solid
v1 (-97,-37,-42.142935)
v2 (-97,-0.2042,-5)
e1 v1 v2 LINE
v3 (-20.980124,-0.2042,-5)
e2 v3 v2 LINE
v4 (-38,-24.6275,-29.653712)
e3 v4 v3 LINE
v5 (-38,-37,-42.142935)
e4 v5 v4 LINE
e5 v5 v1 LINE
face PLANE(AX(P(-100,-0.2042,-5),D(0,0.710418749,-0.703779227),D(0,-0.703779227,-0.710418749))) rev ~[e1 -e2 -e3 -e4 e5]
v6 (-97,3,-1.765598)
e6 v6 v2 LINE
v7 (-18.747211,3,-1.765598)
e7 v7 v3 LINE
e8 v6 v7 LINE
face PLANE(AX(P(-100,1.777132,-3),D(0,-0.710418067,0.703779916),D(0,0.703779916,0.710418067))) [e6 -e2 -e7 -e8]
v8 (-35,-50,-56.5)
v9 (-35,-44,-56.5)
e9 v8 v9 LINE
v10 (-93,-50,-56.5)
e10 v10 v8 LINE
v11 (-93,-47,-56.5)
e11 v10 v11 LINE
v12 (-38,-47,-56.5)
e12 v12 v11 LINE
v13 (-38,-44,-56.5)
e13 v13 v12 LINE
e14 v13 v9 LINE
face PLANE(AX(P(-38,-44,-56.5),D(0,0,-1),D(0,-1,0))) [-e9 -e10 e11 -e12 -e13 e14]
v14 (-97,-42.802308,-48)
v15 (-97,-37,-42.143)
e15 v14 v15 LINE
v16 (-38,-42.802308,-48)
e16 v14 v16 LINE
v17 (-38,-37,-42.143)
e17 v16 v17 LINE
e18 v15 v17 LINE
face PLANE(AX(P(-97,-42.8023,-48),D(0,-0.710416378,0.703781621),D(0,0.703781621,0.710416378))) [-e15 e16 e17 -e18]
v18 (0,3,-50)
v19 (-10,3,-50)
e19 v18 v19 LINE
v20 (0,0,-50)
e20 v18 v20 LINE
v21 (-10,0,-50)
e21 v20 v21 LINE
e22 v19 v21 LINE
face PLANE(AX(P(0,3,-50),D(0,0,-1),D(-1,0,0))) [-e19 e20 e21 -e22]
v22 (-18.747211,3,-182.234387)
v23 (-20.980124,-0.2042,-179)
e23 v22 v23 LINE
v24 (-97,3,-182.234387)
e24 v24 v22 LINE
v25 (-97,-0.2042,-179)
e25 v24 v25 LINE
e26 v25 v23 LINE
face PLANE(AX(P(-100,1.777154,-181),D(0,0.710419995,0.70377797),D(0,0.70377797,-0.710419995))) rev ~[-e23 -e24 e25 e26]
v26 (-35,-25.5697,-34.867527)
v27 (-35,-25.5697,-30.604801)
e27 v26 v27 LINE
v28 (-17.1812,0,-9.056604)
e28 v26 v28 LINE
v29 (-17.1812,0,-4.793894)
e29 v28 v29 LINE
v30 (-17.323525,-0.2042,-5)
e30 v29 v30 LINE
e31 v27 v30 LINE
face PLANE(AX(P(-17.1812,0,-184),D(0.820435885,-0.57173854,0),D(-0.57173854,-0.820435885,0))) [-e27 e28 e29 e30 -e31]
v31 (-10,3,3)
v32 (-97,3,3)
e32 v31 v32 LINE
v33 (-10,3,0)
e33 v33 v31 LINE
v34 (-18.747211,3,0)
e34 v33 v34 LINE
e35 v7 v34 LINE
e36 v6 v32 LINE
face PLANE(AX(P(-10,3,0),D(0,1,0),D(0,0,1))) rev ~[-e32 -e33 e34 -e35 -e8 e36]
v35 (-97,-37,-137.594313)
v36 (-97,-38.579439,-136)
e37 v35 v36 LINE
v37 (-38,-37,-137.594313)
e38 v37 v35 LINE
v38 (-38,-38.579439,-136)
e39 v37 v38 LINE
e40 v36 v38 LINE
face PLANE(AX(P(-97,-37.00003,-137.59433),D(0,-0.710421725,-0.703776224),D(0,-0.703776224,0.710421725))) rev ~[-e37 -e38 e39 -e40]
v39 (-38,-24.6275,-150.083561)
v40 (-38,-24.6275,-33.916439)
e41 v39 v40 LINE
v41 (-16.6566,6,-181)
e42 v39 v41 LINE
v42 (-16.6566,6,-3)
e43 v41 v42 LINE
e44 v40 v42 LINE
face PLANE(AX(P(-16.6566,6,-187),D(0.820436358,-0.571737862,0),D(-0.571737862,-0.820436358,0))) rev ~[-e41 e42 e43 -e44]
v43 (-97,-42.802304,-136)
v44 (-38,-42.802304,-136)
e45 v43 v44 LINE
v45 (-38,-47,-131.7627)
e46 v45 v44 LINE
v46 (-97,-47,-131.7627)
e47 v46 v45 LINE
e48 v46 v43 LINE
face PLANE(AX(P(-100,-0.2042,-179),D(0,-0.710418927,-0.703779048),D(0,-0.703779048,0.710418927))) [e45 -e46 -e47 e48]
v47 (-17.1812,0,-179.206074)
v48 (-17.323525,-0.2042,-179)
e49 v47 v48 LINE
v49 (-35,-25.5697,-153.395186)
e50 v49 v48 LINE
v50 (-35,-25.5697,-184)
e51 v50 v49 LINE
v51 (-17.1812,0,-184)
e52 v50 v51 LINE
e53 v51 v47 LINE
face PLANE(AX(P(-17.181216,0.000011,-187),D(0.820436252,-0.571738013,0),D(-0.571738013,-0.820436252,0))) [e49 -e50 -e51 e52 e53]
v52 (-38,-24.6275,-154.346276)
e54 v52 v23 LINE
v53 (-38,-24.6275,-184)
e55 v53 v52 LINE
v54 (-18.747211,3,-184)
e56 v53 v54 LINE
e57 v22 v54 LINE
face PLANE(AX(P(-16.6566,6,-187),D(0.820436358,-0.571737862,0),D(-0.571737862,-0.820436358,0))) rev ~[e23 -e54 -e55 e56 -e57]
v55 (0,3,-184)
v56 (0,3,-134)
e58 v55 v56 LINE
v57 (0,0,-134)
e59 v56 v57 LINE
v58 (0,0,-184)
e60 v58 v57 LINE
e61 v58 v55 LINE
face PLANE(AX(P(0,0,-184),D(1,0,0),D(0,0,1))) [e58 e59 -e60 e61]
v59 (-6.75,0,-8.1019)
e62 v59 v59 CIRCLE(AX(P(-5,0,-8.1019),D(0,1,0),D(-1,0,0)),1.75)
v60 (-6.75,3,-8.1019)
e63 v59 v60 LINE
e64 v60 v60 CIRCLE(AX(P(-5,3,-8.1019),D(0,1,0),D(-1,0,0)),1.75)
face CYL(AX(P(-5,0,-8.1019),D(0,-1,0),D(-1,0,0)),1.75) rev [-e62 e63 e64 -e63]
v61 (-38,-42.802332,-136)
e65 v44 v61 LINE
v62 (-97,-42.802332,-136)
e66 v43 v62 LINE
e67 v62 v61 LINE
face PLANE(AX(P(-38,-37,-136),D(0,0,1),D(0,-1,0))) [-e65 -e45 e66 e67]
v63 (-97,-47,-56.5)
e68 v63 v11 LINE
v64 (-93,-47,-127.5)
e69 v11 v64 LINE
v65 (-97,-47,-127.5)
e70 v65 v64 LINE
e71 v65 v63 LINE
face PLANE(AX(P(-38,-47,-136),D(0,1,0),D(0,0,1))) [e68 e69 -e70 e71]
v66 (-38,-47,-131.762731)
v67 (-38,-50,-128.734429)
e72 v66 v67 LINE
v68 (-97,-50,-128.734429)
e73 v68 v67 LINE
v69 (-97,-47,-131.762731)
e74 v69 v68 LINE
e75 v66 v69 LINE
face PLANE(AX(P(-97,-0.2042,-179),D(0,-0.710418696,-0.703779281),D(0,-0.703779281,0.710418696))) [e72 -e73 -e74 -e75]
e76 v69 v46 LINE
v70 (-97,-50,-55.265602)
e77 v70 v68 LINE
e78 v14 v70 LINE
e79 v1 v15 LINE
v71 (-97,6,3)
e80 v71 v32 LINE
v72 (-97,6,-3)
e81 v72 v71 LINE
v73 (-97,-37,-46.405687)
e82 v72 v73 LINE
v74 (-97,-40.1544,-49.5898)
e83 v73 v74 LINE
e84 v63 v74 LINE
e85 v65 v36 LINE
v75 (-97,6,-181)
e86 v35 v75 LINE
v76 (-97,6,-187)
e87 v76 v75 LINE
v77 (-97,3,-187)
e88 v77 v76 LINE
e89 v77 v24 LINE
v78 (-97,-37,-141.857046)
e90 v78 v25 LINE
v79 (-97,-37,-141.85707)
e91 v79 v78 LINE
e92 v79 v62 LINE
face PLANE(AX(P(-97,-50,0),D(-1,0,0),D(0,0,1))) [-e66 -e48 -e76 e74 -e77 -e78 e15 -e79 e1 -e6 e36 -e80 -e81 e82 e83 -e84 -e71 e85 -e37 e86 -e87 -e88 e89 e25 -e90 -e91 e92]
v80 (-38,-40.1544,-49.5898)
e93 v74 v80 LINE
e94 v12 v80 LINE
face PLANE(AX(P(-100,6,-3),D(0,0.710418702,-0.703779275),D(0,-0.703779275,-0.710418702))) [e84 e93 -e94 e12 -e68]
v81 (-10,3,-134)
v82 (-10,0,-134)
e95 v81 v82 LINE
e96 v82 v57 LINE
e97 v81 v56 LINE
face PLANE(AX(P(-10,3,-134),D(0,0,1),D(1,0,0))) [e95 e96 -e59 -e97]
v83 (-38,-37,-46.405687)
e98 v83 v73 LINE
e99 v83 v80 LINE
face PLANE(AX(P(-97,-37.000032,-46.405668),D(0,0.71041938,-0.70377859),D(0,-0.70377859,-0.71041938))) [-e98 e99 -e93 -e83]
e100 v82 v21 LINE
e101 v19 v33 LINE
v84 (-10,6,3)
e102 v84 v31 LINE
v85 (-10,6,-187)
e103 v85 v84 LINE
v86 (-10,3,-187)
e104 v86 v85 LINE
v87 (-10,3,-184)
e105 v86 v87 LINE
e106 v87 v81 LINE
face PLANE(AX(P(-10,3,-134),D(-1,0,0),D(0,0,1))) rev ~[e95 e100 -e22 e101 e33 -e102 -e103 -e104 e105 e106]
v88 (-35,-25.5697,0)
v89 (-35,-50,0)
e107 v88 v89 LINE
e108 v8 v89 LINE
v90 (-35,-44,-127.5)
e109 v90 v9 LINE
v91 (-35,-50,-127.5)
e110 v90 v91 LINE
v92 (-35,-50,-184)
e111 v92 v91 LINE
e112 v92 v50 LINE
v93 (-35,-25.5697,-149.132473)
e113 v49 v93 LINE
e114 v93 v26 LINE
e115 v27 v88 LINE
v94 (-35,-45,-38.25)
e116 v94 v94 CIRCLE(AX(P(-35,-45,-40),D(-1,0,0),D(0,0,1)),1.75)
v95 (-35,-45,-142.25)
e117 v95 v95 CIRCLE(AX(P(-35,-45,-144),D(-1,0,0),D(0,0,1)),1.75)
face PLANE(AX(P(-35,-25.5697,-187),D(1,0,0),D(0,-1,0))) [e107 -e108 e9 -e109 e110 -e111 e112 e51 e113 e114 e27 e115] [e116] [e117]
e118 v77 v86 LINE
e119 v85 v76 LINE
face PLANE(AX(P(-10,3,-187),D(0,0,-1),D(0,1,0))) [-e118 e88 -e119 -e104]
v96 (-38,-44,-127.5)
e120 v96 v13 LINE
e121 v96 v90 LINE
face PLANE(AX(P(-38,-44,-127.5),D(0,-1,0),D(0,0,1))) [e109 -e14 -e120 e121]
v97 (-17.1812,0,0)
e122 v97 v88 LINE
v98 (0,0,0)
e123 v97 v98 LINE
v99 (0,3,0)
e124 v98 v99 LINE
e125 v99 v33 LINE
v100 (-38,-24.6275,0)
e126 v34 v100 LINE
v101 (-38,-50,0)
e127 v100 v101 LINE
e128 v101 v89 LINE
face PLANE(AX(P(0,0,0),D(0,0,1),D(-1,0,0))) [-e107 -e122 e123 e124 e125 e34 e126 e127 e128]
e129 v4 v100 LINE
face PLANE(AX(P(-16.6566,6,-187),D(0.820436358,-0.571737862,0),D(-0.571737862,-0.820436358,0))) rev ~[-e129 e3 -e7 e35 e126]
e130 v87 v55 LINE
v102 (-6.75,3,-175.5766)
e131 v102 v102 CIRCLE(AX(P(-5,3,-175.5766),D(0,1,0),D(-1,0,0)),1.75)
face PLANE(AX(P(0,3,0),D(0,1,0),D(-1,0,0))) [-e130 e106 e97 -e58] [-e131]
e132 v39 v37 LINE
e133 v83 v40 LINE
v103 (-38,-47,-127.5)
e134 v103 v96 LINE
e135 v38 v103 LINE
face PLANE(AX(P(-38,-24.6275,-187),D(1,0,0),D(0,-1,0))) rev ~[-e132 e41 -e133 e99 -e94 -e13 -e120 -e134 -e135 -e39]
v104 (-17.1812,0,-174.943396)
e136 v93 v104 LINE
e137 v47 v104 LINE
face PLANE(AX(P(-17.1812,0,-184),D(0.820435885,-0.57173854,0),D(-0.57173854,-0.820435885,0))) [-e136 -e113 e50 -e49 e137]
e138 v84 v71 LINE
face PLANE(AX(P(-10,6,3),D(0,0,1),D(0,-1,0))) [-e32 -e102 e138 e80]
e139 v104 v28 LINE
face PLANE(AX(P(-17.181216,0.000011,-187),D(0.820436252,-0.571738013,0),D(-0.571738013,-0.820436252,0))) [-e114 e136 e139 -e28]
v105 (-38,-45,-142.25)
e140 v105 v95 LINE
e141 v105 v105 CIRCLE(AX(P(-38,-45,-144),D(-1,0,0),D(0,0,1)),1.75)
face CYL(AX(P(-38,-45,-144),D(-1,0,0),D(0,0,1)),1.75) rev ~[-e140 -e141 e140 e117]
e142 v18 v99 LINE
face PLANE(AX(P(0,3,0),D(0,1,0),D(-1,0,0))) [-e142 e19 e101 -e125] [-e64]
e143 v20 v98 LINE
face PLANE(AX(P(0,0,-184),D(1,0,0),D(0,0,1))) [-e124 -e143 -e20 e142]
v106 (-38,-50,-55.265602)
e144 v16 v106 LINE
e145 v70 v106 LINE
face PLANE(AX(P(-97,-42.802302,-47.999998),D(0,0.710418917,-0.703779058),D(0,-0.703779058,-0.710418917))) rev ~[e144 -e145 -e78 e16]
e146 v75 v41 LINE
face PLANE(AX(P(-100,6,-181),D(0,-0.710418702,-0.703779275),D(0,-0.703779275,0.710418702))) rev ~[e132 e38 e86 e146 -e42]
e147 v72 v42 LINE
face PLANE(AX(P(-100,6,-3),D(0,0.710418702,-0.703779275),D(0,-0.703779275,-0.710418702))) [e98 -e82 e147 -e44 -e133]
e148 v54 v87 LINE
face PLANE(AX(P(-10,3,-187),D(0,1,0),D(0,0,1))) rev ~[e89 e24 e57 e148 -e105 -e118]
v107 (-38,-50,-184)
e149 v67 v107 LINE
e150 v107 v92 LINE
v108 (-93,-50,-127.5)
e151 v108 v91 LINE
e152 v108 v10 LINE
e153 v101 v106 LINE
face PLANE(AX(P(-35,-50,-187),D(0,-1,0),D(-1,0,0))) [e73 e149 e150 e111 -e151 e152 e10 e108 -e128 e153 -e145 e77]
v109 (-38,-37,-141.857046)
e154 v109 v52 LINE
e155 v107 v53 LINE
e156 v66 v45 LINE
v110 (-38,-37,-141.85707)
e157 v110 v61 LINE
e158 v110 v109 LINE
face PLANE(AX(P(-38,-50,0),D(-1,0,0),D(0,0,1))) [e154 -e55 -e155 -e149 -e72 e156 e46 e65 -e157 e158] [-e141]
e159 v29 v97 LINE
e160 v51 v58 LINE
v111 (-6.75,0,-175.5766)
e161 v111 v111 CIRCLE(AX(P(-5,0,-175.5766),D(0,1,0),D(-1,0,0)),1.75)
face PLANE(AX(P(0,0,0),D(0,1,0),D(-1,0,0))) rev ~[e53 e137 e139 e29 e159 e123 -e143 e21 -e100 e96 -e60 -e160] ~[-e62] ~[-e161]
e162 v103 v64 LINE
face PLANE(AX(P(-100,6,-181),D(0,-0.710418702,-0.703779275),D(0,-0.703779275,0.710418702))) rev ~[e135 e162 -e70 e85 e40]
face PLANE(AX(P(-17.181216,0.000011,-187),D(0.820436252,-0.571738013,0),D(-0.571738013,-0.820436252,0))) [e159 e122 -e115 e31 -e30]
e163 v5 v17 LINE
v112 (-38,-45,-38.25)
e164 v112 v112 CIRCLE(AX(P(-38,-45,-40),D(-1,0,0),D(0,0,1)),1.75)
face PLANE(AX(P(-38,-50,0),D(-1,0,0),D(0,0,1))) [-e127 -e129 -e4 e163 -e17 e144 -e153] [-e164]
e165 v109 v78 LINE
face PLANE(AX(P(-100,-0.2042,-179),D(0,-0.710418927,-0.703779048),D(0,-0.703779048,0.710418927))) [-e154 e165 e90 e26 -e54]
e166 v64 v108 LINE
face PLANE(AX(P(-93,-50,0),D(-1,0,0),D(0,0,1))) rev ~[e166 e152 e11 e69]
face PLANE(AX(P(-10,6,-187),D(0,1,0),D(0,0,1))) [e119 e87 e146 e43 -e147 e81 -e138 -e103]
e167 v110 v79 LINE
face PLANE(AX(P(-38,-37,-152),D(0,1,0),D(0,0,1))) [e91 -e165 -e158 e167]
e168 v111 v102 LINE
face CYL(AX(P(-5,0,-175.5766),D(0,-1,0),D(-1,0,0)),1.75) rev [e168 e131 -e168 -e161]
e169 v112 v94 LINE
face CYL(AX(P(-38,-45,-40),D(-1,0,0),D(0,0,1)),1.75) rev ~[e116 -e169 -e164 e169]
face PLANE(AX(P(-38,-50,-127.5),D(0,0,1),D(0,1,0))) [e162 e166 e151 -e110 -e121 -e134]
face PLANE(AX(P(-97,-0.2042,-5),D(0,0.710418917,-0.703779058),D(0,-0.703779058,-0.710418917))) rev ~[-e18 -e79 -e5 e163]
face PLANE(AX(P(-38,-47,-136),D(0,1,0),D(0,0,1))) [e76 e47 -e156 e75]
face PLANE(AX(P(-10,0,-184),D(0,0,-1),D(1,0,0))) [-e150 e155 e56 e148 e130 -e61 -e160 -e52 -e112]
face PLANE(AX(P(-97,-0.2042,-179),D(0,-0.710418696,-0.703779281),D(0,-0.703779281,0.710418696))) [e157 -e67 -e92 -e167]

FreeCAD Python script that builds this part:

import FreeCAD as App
import Part
import Sketcher

V = App.Vector
Q = App.Units.Quantity


def add_polygon(sketch, points):
    """Adds a closed chain of lines whose ends are joined by coincident constraints."""
    first, n = sketch.GeometryCount, len(points)
    for a, b in zip(points, points[1:] + points[:1]):
        sketch.addGeometry(Part.LineSegment(App.Vector(*a, 0), App.Vector(*b, 0)), False)
    for i in range(n):
        sketch.addConstraint(Sketcher.Constraint("Coincident", first + i, 2, first + (i + 1) % n, 1))

doc = App.newDocument("Part")
params = doc.addObject("Spreadsheet::Sheet", "Params")
for row, (alias, value) in enumerate([
    ("sketch1_diameter", "3.5 mm"),
    ("sketch1_width", "10 mm"),
    ("sketch1_height", "184 mm"),
    ("pad1_length", "3 mm"),
    ("sketch2_width", "3 mm"),
    ("sketch2_height", "184 mm"),
    ("pad2_length", "3 mm"),
    ("sketch3_width", "3 mm"),
    ("sketch3_height", "6 mm"),
    ("pad3_length", "190 mm"),
    ("sketch4_width", "25 mm"),
    ("sketch4_height", "53 mm"),
    ("pocket1_length", "3 mm"),
    ("sketch5_width", "25 mm"),
    ("sketch5_height", "53 mm"),
    ("pocket2_length", "3 mm"),
    ("sketch6_diameter", "3.5 mm"),
    ("pocket3_length", "3 mm"),
    ("sketch7_width", "6 mm"),
    ("sketch7_height", "71 mm"),
    ("pocket4_length", "3 mm"),
    ("sketch8_width", "3 mm"),
    ("sketch8_width2", "10 mm"),
    ("sketch8_height", "32 mm"),
    ("sketch8_height2", "8.5 mm"),
    ("pad4_length", "55 mm"),
    ("sketch9_width", "3 mm"),
    ("sketch9_width2", "10 mm"),
    ("sketch9_width3", "7 mm"),
    ("sketch9_height", "32 mm"),
    ("sketch9_height2", "16 mm"),
    ("pad5_length", "7 mm"),
    ("sketch10_width", "3 mm"),
    ("pad6_length", "90 mm"),
    ("pocket5_length", "3 mm"),
    ("sketch12_width", "35 mm"),
    ("sketch13_length", "13.48 mm"),
    ("pocket7_length", "59 mm"),
    ("sketch14_width", "10 mm"),
    ("sketch14_height", "84 mm"),
    ("pocket8_length", "90 mm"),
], start=1):
    params.set(f"A{row}", alias)
    params.set(f"B{row}", "=" + value)
    params.setAlias(f"B{row}", alias)

body = doc.addObject("PartDesign::Body", "Body")

sketch1 = body.newObject("Sketcher::SketchObject", "Sketch")
sketch1.AttachmentSupport = (doc.getObject("XZ_Plane"), [""])
sketch1.MapMode = "FlatFace"
add_polygon(sketch1, [(-10, 0), (0, 0), (0, -184), (-10, -184)])
sketch1.addGeometry(Part.Circle(V(-5, -175.6, 0), V(0, 0, 1), 1.8), False)
sketch1.addGeometry(Part.Circle(V(-5, -8.1, 0), V(0, 0, 1), 1.8), False)
sketch1.addConstraint([
    Sketcher.Constraint("Horizontal", 0),
    Sketcher.Constraint("Vertical", 1),
    Sketcher.Constraint("Horizontal", 2),
    Sketcher.Constraint("Vertical", 3),
    Sketcher.Constraint("Coincident", 0, 2, -1, 1),
    Sketcher.Constraint("Equal", 4, 5),
    Sketcher.Constraint("Vertical", 4, 3, 5, 3),
    Sketcher.Constraint("Diameter", 4, 3.5),
    Sketcher.Constraint("DistanceX", 0, 1, 0, 2, 10.0),
    Sketcher.Constraint("DistanceY", 1, 2, 1, 1, 184.0),
    Sketcher.Constraint("DistanceX", 4, 3, -1, 1, 5.0),
    Sketcher.Constraint("DistanceY", 4, 3, 5, 3, 167.4747),
    Sketcher.Constraint("DistanceY", 5, 3, -1, 1, 8.102),
])
sketch1.setExpression("Constraints[11]", "Params.sketch1_diameter")
sketch1.setExpression("Constraints[12]", "Params.sketch1_width")
sketch1.setExpression("Constraints[13]", "Params.sketch1_height")
pad1 = body.newObject("PartDesign::Pad", "Pad")
pad1.Profile = sketch1
pad1.setExpression("Length", "Params.pad1_length")
pad1.Reversed = True

sketch2 = body.newObject("Sketcher::SketchObject", "Sketch001")
sketch2.AttachmentSupport = (doc.getObject("YZ_Plane"), [""])
sketch2.MapMode = "FlatFace"
sketch2.AttachmentOffset = App.Placement(V(0, 0, -10), App.Rotation())
add_polygon(sketch2, [(0, -184), (0, 0), (3, 0), (3, 3), (6, 3), (6, -187), (3, -187), (3, -184)])
sketch2.addConstraint([
    Sketcher.Constraint("Vertical", 0),
    Sketcher.Constraint("Horizontal", 1),
    Sketcher.Constraint("Vertical", 2),
    Sketcher.Constraint("Horizontal", 3),
    Sketcher.Constraint("Vertical", 4),
    Sketcher.Constraint("Horizontal", 5),
    Sketcher.Constraint("Vertical", 6),
    Sketcher.Constraint("Horizontal", 7),
    Sketcher.Constraint("Coincident", 0, 2, -1, 1),
    Sketcher.Constraint("Vertical", 2, 2, 5, 2),
    Sketcher.Constraint("Equal", 1, 3),
    Sketcher.Constraint("Equal", 7, 2),
    Sketcher.Constraint("Equal", 2, 6),
    Sketcher.Constraint("DistanceX", 1, 1, 1, 2, 3.0),
    Sketcher.Constraint("DistanceY", 0, 1, 0, 2, 184.0),
])
sketch2.setExpression("Constraints[21]", "Params.sketch2_width")
sketch2.setExpression("Constraints[22]", "Params.sketch2_height")
pad2 = body.newObject("PartDesign::Pad", "Pad001")
pad2.Profile = sketch2
pad2.setExpression("Length", "Params.pad2_length")
pad2.Reversed = True

sketch3 = body.newObject("Sketcher::SketchObject", "Sketch002")
sketch3.AttachmentSupport = (doc.getObject("XY_Plane"), [""])
sketch3.MapMode = "FlatFace"
sketch3.AttachmentOffset = App.Placement(V(0, 0, -187), App.Rotation())
add_polygon(sketch3, [(-16.7, 6), (-13, 6), (-13, 0), (-17.2, 0), (-35, -25.6), (-35, -50), (-38, -50), (-38, -24.6)])
sketch3.addConstraint([
    Sketcher.Constraint("Horizontal", 0),
    Sketcher.Constraint("Vertical", 1),
    Sketcher.Constraint("Horizontal", 2),
    Sketcher.Constraint("Vertical", 4),
    Sketcher.Constraint("Horizontal", 5),
    Sketcher.Constraint("Vertical", 6),
    Sketcher.Constraint("PointOnObject", 1, 2, -1),
    Sketcher.Constraint("Parallel", 3, 7),
    Sketcher.Constraint("DistanceX", 5, 2, 5, 1, 3.0),
    Sketcher.Constraint("DistanceY", 1, 2, 1, 1, 6.0),
    Sketcher.Constraint("DistanceX", 0, 2, -1, 1, 13.0),
    Sketcher.Constraint("DistanceX", 3, 2, -1, 1, 35.0),
    Sketcher.Constraint("DistanceY", 4, 2, -1, 1, 50.0),
    Sketcher.Constraint("Distance", 3, 31.166),
    Sketcher.Constraint("DistanceX", 0, 1, 0, 2, 3.6566),
    Sketcher.Constraint("DistanceX", 2, 2, 2, 1, 4.1812),
])
sketch3.setExpression("Constraints[16]", "Params.sketch3_width")
sketch3.setExpression("Constraints[17]", "Params.sketch3_height")
pad3 = body.newObject("PartDesign::Pad", "Pad002")
pad3.Profile = sketch3
pad3.setExpression("Length", "Params.pad3_length")

sketch4 = body.newObject("Sketcher::SketchObject", "Sketch003")
sketch4.AttachmentSupport = (doc.getObject("XY_Plane"), [""])
sketch4.MapMode = "FlatFace"
sketch4.AttachmentOffset = App.Placement(V(0, 0, -187), App.Rotation())
add_polygon(sketch4, [(-13, -50), (-38, -50), (-38, 3), (-13, 3)])
sketch4.addConstraint([
    Sketcher.Constraint("Horizontal", 0),
    Sketcher.Constraint("Vertical", 1),
    Sketcher.Constraint("Horizontal", 2),
    Sketcher.Constraint("Vertical", 3),
    Sketcher.Constraint("DistanceX", 0, 2, 0, 1, 25.0),
    Sketcher.Constraint("DistanceY", 1, 1, 1, 2, 53.0),
    Sketcher.Constraint("DistanceX", 0, 2, -1, 1, 38.0),
    Sketcher.Constraint("DistanceY", 0, 2, -1, 1, 50.0),
])
sketch4.setExpression("Constraints[8]", "Params.sketch4_width")
sketch4.setExpression("Constraints[9]", "Params.sketch4_height")
pocket1 = body.newObject("PartDesign::Pocket", "Pocket")
pocket1.Profile = sketch4
pocket1.setExpression("Length", "Params.pocket1_length")
pocket1.Reversed = True

sketch5 = body.newObject("Sketcher::SketchObject", "Sketch004")
sketch5.AttachmentSupport = (doc.getObject("XY_Plane"), [""])
sketch5.MapMode = "FlatFace"
sketch5.AttachmentOffset = App.Placement(V(0, 0, 3), App.Rotation())
add_polygon(sketch5, [(-38, 3), (-38, -50), (-13, -50), (-13, 3)])
sketch5.addConstraint([
    Sketcher.Constraint("Vertical", 0),
    Sketcher.Constraint("Horizontal", 1),
    Sketcher.Constraint("Vertical", 2),
    Sketcher.Constraint("Horizontal", 3),
    Sketcher.Constraint("DistanceX", 1, 1, 1, 2, 25.0),
    Sketcher.Constraint("DistanceY", 0, 2, 0, 1, 53.0),
    Sketcher.Constraint("DistanceX", 0, 2, -1, 1, 38.0),
    Sketcher.Constraint("DistanceY", 0, 2, -1, 1, 50.0),
])
sketch5.setExpression("Constraints[8]", "Params.sketch5_width")
sketch5.setExpression("Constraints[9]", "Params.sketch5_height")
pocket2 = body.newObject("PartDesign::Pocket", "Pocket001")
pocket2.Profile = sketch5
pocket2.setExpression("Length", "Params.pocket2_length")

sketch6 = body.newObject("Sketcher::SketchObject", "Sketch005")
sketch6.AttachmentSupport = (doc.getObject("YZ_Plane"), [""])
sketch6.MapMode = "FlatFace"
sketch6.AttachmentOffset = App.Placement(V(0, 0, -38), App.Rotation())
sketch6.addGeometry([
    Part.Circle(V(-45, -40, 0), V(0, 0, 1), 1.8),
    Part.Circle(V(-45, -144, 0), V(0, 0, 1), 1.8),
], False)
sketch6.addConstraint([
    Sketcher.Constraint("Equal", 0, 1),
    Sketcher.Constraint("Vertical", 0, 3, 1, 3),
    Sketcher.Constraint("Diameter", 0, 3.5),
    Sketcher.Constraint("DistanceY", 0, 3, -1, 1, 40.0),
    Sketcher.Constraint("DistanceY", 1, 3, 0, 3, 104.0),
    Sketcher.Constraint("DistanceX", 0, 3, -1, 1, 45.0),
])
sketch6.setExpression("Constraints[2]", "Params.sketch6_diameter")
pocket3 = body.newObject("PartDesign::Pocket", "Pocket002")
pocket3.Profile = sketch6
pocket3.setExpression("Length", "Params.pocket3_length")
pocket3.Reversed = True

sketch7 = body.newObject("Sketcher::SketchObject", "Sketch006")
sketch7.AttachmentSupport = (doc.getObject("YZ_Plane"), [""])
sketch7.MapMode = "FlatFace"
sketch7.AttachmentOffset = App.Placement(V(0, 0, -38), App.Rotation())
add_polygon(sketch7, [(-44, -128), (-50, -128), (-50, -56), (-44, -56)])
sketch7.addConstraint([
    Sketcher.Constraint("Horizontal", 0),
    Sketcher.Constraint("Vertical", 1),
    Sketcher.Constraint("Horizontal", 2),
    Sketcher.Constraint("Vertical", 3),
    Sketcher.Constraint("DistanceX", 0, 2, 0, 1, 6.0),
    Sketcher.Constraint("DistanceY", 1, 1, 1, 2, 71.0),
    Sketcher.Constraint("DistanceY", 1, 2, -1, 1, 56.5),
    Sketcher.Constraint("DistanceX", 0, 2, -1, 1, 50.0),
])
sketch7.setExpression("Constraints[8]", "Params.sketch7_width")
sketch7.setExpression("Constraints[9]", "Params.sketch7_height")
pocket4 = body.newObject("PartDesign::Pocket", "Pocket003")
pocket4.Profile = sketch7
pocket4.setExpression("Length", "Params.pocket4_length")
pocket4.Reversed = True

sketch8 = body.newObject("Sketcher::SketchObject", "Sketch007")
sketch8.AttachmentSupport = (doc.getObject("YZ_Plane"), [""])
sketch8.MapMode = "FlatFace"
sketch8.AttachmentOffset = App.Placement(V(0, 0, -38), App.Rotation())
add_polygon(sketch8, [(-50, 0), (-47, 0), (-47, -32), (-37, -32), (-37, -48), (-47, -48), (-47, -56.5), (-50, -56.5), (-50, -45), (-40, -45), (-40, -35), (-50, -35)])
add_polygon(sketch8, [(-47, -184), (-50, -184), (-50, -149), (-40, -149), (-40, -139), (-50, -139), (-50, -127.5), (-47, -127.5), (-47, -136), (-37, -136), (-37, -152), (-47, -152)])
sketch8.addConstraint([
    Sketcher.Constraint("Horizontal", 0),
    Sketcher.Constraint("Vertical", 1),
    Sketcher.Constraint("Horizontal", 2),
    Sketcher.Constraint("Vertical", 3),
    Sketcher.Constraint("Horizontal", 4),
    Sketcher.Constraint("Vertical", 5),
    Sketcher.Constraint("Horizontal", 6),
    Sketcher.Constraint("Vertical", 7),
    Sketcher.Constraint("Horizontal", 8),
    Sketcher.Constraint("Vertical", 9),
    Sketcher.Constraint("Horizontal", 10),
    Sketcher.Constraint("Vertical", 11),
    Sketcher.Constraint("Horizontal", 12),
    Sketcher.Constraint("Vertical", 13),
    Sketcher.Constraint("Horizontal", 14),
    Sketcher.Constraint("Vertical", 15),
    Sketcher.Constraint("Horizontal", 16),
    Sketcher.Constraint("Vertical", 17),
    Sketcher.Constraint("Horizontal", 18),
    Sketcher.Constraint("Vertical", 19),
    Sketcher.Constraint("Horizontal", 20),
    Sketcher.Constraint("Vertical", 21),
    Sketcher.Constraint("Horizontal", 22),
    Sketcher.Constraint("Vertical", 23),
    Sketcher.Constraint("PointOnObject", 0, 2, -1),
    Sketcher.Constraint("Vertical", 1, 2, 4, 2),
    Sketcher.Constraint("Vertical", 7, 2, 10, 2),
    Sketcher.Constraint("Vertical", 11, 2, 12, 2),
    Sketcher.Constraint("Vertical", 9, 2, 14, 2),
    Sketcher.Constraint("Vertical", 13, 2, 16, 2),
    Sketcher.Constraint("Vertical", 5, 2, 18, 2),
    Sketcher.Constraint("Vertical", 3, 2, 20, 2),
    Sketcher.Constraint("Vertical", 19, 2, 22, 2),
    Sketcher.Constraint("Equal", 4, 8),
    Sketcher.Constraint("Equal", 22, 9),
    Sketcher.Constraint("Equal", 11, 13),
    Sketcher.Constraint("Equal", 9, 15),
    Sketcher.Constraint("Equal", 7, 17),
    Sketcher.Constraint("Equal", 5, 19),
    Sketcher.Constraint("Equal", 3, 21),
    Sketcher.Constraint("DistanceX", 0, 1, 0, 2, 3.0),
    Sketcher.Constraint("DistanceY", 4, 2, 7, 2, 3.0),
    Sketcher.Constraint("DistanceY", 9, 2, 2, 2, 3.0),
    Sketcher.Constraint("DistanceX", 2, 1, 2, 2, 10.0),
    Sketcher.Constraint("DistanceY", 1, 2, 1, 1, 32.0),
    Sketcher.Constraint("DistanceY", 5, 2, 5, 1, 8.5),
    Sketcher.Constraint("DistanceX", 0, 2, -1, 1, 47.0),
    Sketcher.Constraint("DistanceY", 12, 2, -1, 1, 184.0),
])
sketch8.setExpression("Constraints[64]", "Params.sketch8_width")
sketch8.setExpression("Constraints[67]", "Params.sketch8_width2")
sketch8.setExpression("Constraints[68]", "Params.sketch8_height")
sketch8.setExpression("Constraints[69]", "Params.sketch8_height2")
pad4 = body.newObject("PartDesign::Pad", "Pad003")
pad4.Profile = sketch8
pad4.setExpression("Length", "Params.pad4_length")
pad4.Reversed = True

sketch9 = body.newObject("Sketcher::SketchObject", "Sketch008")
sketch9.AttachmentSupport = (doc.getObject("YZ_Plane"), [""])
sketch9.MapMode = "FlatFace"
sketch9.AttachmentOffset = App.Placement(V(0, 0, -93), App.Rotation())
add_polygon(sketch9, [(-50, 0), (-47, 0), (-47, -32), (-37, -32), (-37, -48), (-47, -48), (-47, -136), (-37, -136), (-37, -152), (-47, -152), (-47, -184), (-50, -184)])
add_polygon(sketch9, [(-47, -35), (-47, -45), (-40, -45), (-40, -35)])
add_polygon(sketch9, [(-47, -139), (-47, -149), (-40, -149), (-40, -139)])
sketch9.addConstraint([
    Sketcher.Constraint("Horizontal", 0),
    Sketcher.Constraint("Vertical", 1),
    Sketcher.Constraint("Horizontal", 2),
    Sketcher.Constraint("Vertical", 3),
    Sketcher.Constraint("Horizontal", 4),
    Sketcher.Constraint("Vertical", 5),
    Sketcher.Constraint("Horizontal", 6),
    Sketcher.Constraint("Vertical", 7),
    Sketcher.Constraint("Horizontal", 8),
    Sketcher.Constraint("Vertical", 9),
    Sketcher.Constraint("Horizontal", 10),
    Sketcher.Constraint("Vertical", 11),
    Sketcher.Constraint("Vertical", 12),
    Sketcher.Constraint("Horizontal", 13),
    Sketcher.Constraint("Vertical", 14),
    Sketcher.Constraint("Horizontal", 15),
    Sketcher.Constraint("Vertical", 16),
    Sketcher.Constraint("Horizontal", 17),
    Sketcher.Constraint("Vertical", 18),
    Sketcher.Constraint("Horizontal", 19),
    Sketcher.Constraint("PointOnObject", 0, 2, -1),
    Sketcher.Constraint("Vertical", 1, 2, 4, 2),
    Sketcher.Constraint("Vertical", 3, 2, 6, 2),
    Sketcher.Constraint("Vertical", 5, 2, 8, 2),
    Sketcher.Constraint("Vertical", 9, 2, 12, 2),
    Sketcher.Constraint("Vertical", 15, 2, 16, 2),
    Sketcher.Constraint("Vertical", 14, 2, 17, 2),
    Sketcher.Constraint("Equal", 3, 7),
    Sketcher.Constraint("Equal", 1, 9),
    Sketcher.Constraint("Equal", 8, 12),
    Sketcher.Constraint("Equal", 14, 16),
    Sketcher.Constraint("DistanceX", 0, 1, 0, 2, 3.0),
    Sketcher.Constraint("DistanceX", 2, 1, 2, 2, 10.0),
    Sketcher.Constraint("DistanceX", 13, 1, 13, 2, 7.0),
    Sketcher.Constraint("DistanceY", 1, 2, 1, 1, 32.0),
    Sketcher.Constraint("DistanceY", 3, 2, 3, 1, 16.0),
    Sketcher.Constraint("DistanceY", 5, 2, 5, 1, 88.0),
    Sketcher.Constraint("DistanceX", 0, 2, -1, 1, 47.0),
    Sketcher.Constraint("DistanceY", 12, 2, -1, 1, 45.0),
    Sketcher.Constraint("DistanceY", 16, 2, -1, 1, 149.0),
])
sketch9.setExpression("Constraints[51]", "Params.sketch9_width")
sketch9.setExpression("Constraints[52]", "Params.sketch9_width2")
sketch9.setExpression("Constraints[53]", "Params.sketch9_width3")
sketch9.setExpression("Constraints[54]", "Params.sketch9_height")
sketch9.setExpression("Constraints[55]", "Params.sketch9_height2")
pad5 = body.newObject("PartDesign::Pad", "Pad004")
pad5.Profile = sketch9
pad5.setExpression("Length", "Params.pad5_length")
pad5.Reversed = True

sketch10 = body.newObject("Sketcher::SketchObject", "Sketch009")
sketch10.AttachmentSupport = (doc.getObject("YZ_Plane"), [""])
sketch10.MapMode = "FlatFace"
sketch10.AttachmentOffset = App.Placement(V(0, 0, -100), App.Rotation())
add_polygon(sketch10, [(6, -187), (3, -187), (3, -182.2), (-0.2, -179), (-47, -131.8), (-47, -127.5), (6, -181)])
add_polygon(sketch10, [(6, -3), (-47, -56.5), (-47, -52.2), (-0.2, -5), (3, -1.8), (3, 3), (6, 3)])
sketch10.addConstraint([
    Sketcher.Constraint("Horizontal", 0),
    Sketcher.Constraint("Vertical", 1),
    Sketcher.Constraint("Vertical", 4),
    Sketcher.Constraint("Vertical", 6),
    Sketcher.Constraint("Vertical", 8),
    Sketcher.Constraint("Vertical", 11),
    Sketcher.Constraint("Horizontal", 12),
    Sketcher.Constraint("Vertical", 13),
    Sketcher.Constraint("Parallel", 2, 3),
    Sketcher.Constraint("Parallel", 3, 5),
    Sketcher.Constraint("Parallel", 7, 9),
    Sketcher.Constraint("Parallel", 9, 10),
    Sketcher.Constraint("Vertical", 4, 2, 7, 2),
    Sketcher.Constraint("Vertical", 2, 2, 9, 2),
    Sketcher.Constraint("Vertical", 1, 2, 10, 2),
    Sketcher.Constraint("Vertical", 6, 2, 12, 2),
    Sketcher.Constraint("Equal", 4, 8),
    Sketcher.Constraint("Equal", 1, 11),
    Sketcher.Constraint("Equal", 6, 13),
    Sketcher.Constraint("DistanceX", 0, 2, 0, 1, 3.0),
    Sketcher.Constraint("DistanceX", -1, 1, 0, 2, 3.0),
    Sketcher.Constraint("DistanceY", -1, 1, 11, 2, 3.0),
    Sketcher.Constraint("DistanceY", 13, 2, -1, 1, 3.0),
    Sketcher.Constraint("DistanceY", 5, 2, 2, 2, 2.0),
    Sketcher.Constraint("DistanceY", 0, 2, -1, 1, 187.0),
    Sketcher.Constraint("DistanceX", 3, 2, -1, 1, 47.0),
    Sketcher.Constraint("DistanceY", 4, 2, 7, 2, 71.0),
    Sketcher.Constraint("DistanceY", 1, 1, 1, 2, 4.7656),
])
sketch10.setExpression("Constraints[33]", "Params.sketch10_width")
pad6 = body.newObject("PartDesign::Pad", "Pad005")
pad6.Profile = sketch10
pad6.setExpression("Length", "Params.pad6_length")

sketch11 = body.newObject("Sketcher::SketchObject", "Sketch010")
sketch11.AttachmentSupport = (doc.getObject("YZ_Plane"), [""])
sketch11.MapMode = "FlatFace"
sketch11.AttachmentOffset = App.Placement(V(0, 0, -100), App.Rotation())
add_polygon(sketch11, [(-97, 45), (67, 45), (67, -211), (-97, -211)])
sketch11.addConstraint([
    Sketcher.Constraint("Horizontal", 0),
    Sketcher.Constraint("Vertical", 1),
    Sketcher.Constraint("Horizontal", 2),
    Sketcher.Constraint("Vertical", 3),
    Sketcher.Constraint("DistanceX", 0, 1, 0, 2, 163.6564),
    Sketcher.Constraint("DistanceY", 1, 2, 1, 1, 256.0957),
    Sketcher.Constraint("DistanceX", -1, 1, 0, 2, 66.5237),
    Sketcher.Constraint("DistanceY", -1, 1, 0, 2, 44.6892),
])
pocket5 = body.newObject("PartDesign::Pocket", "Pocket004")
pocket5.Profile = sketch11
pocket5.setExpression("Length", "Params.pocket5_length")
pocket5.Reversed = True

sketch12 = body.newObject("Sketcher::SketchObject", "Sketch011")
sketch12.AttachmentSupport = (doc.getObject("XY_Plane"), [""])
sketch12.MapMode = "FlatFace"
sketch12.AttachmentOffset = App.Placement(V(0, 0, -184), App.Rotation())
add_polygon(sketch12, [(0, -57), (-35, -57), (-35, -26), (-17, 0), (0, 0)])
sketch12.addConstraint([
    Sketcher.Constraint("Horizontal", 0),
    Sketcher.Constraint("Vertical", 1),
    Sketcher.Constraint("Horizontal", 3),
    Sketcher.Constraint("Vertical", 4),
    Sketcher.Constraint("Coincident", 3, 2, -1, 1),
    Sketcher.Constraint("DistanceX", 0, 2, 0, 1, 35.0),
    Sketcher.Constraint("DistanceY", 1, 1, 1, 2, 31.719),
    Sketcher.Constraint("Distance", 2, 31.166),
    Sketcher.Constraint("DistanceX", 3, 1, 3, 2, 17.1812),
])
sketch12.setExpression("Constraints[10]", "Params.sketch12_width")
pocket6 = body.newObject("PartDesign::Pocket", "Pocket005")
pocket6.Profile = sketch12
pocket6.Type = "ThroughAll"
pocket6.Reversed = True

sketch13 = body.newObject("Sketcher::SketchObject", "Sketch012")
sketch13.AttachmentSupport = (doc.getObject("YZ_Plane"), [""])
sketch13.MapMode = "FlatFace"
sketch13.AttachmentOffset = App.Placement(V(0, 0, -97), App.Rotation())
add_polygon(sketch13, [(-40.2, -49.6), (-37, -46.4), (-36.3, -45.7), (-33.8, -48.1), (-37.7, -52)])
add_polygon(sketch13, [(-33.1, -135.2), (-36.3, -138.3), (-37, -137.6), (-39.9, -134.7), (-36.7, -131.5)])
add_polygon(sketch13, [(-53.4, -125.3), (-0.2, -179), (-37.5, -215.9), (-90.7, -162.2)])
add_polygon(sketch13, [(-37, -42.1), (-42.8, -48), (-52.3, -57.6), (-98.6, -11.7), (-46.5, 40.9), (-0.2, -5)])
sketch13.addConstraint([
    Sketcher.Constraint("Parallel", 0, 1),
    Sketcher.Constraint("Perpendicular", 1, 2),
    Sketcher.Constraint("Perpendicular", 2, 3),
    Sketcher.Constraint("Perpendicular", 3, 4),
    Sketcher.Constraint("Perpendicular", 5, 6),
    Sketcher.Constraint("Parallel", 6, 7),
    Sketcher.Constraint("Perpendicular", 7, 8),
    Sketcher.Constraint("Perpendicular", 8, 9),
    Sketcher.Constraint("Parallel", 9, 10),
    Sketcher.Constraint("Perpendicular", 10, 11),
    Sketcher.Constraint("Perpendicular", 11, 12),
    Sketcher.Constraint("Perpendicular", 12, 13),
    Sketcher.Constraint("Perpendicular", 4, 14),
    Sketcher.Constraint("Parallel", 14, 15),
    Sketcher.Constraint("Perpendicular", 15, 16),
    Sketcher.Constraint("Perpendicular", 16, 17),
    Sketcher.Constraint("Perpendicular", 17, 18),
    Sketcher.Constraint("Perpendicular", 18, 19),
    Sketcher.Constraint("Vertical", 1, 2, 5, 2),
    Sketcher.Constraint("Vertical", 0, 2, 6, 2),
    Sketcher.Constraint("Vertical", 10, 2, 18, 2),
    Sketcher.Constraint("Vertical", 6, 2, 19, 2),
    Sketcher.Constraint("Equal", 1, 6),
    Sketcher.Constraint("DistanceX", 0, 2, -1, 1, 37.0),
    Sketcher.Constraint("DistanceY", 10, 2, -1, 1, 179.0),
    Sketcher.Constraint("DistanceY", 14, 2, -1, 1, 48.0),
    Sketcher.Constraint("DistanceY", 18, 2, -1, 1, 5.0),
    Sketcher.Constraint("Angle", 0, Q("45.269 deg")),
    Sketcher.Constraint("Distance", 15, 13.48),
    Sketcher.Constraint("DistanceY", 16, 2, -1, 1, 11.67),
    Sketcher.Constraint("DistanceY", 5, 2, 0, 2, 91.92),
    Sketcher.Constraint("DistanceX", 7, 2, 5, 2, 3.59),
    Sketcher.Constraint("DistanceY", 12, 2, 7, 2, 27.52),
    Sketcher.Constraint("Distance", 0, 4.482),
    Sketcher.Constraint("Distance", 10, 75.609),
    Sketcher.Constraint("Distance", 11, 52.482),
    Sketcher.Constraint("DistanceY", 19, 2, -1, 1, 42.143),
    Sketcher.Constraint("DistanceY", 2, 2, 0, 2, 1.695),
    Sketcher.Constraint("DistanceX", 3, 2, 2, 2, 3.879),
    Sketcher.Constraint("DistanceX", 7, 2, 8, 2, 3.183),
])
sketch13.setExpression("Constraints[48]", "Params.sketch13_length")
pocket7 = body.newObject("PartDesign::Pocket", "Pocket006")
pocket7.Profile = sketch13
pocket7.setExpression("Length", "Params.pocket7_length")
pocket7.Reversed = True

sketch14 = body.newObject("Sketcher::SketchObject", "Sketch013")
sketch14.AttachmentSupport = (doc.getObject("XZ_Plane"), [""])
sketch14.MapMode = "FlatFace"
sketch14.AttachmentOffset = App.Placement(V(0, 0, -3), App.Rotation())
add_polygon(sketch14, [(-10, -50), (0, -50), (0, -134), (-10, -134)])
sketch14.addConstraint([
    Sketcher.Constraint("Horizontal", 0),
    Sketcher.Constraint("Vertical", 1),
    Sketcher.Constraint("Horizontal", 2),
    Sketcher.Constraint("Vertical", 3),
    Sketcher.Constraint("PointOnObject", 0, 2, -2),
    Sketcher.Constraint("DistanceY", 0, 2, -1, 1, 50.0),
    Sketcher.Constraint("DistanceX", 0, 1, 0, 2, 10.0),
    Sketcher.Constraint("DistanceY", 1, 2, 1, 1, 84.0),
])
sketch14.setExpression("Constraints[10]", "Params.sketch14_width")
sketch14.setExpression("Constraints[11]", "Params.sketch14_height")
pocket8 = body.newObject("PartDesign::Pocket", "Pocket007")
pocket8.Profile = sketch14
pocket8.setExpression("Length", "Params.pocket8_length")
pocket8.Reversed = True

doc.recompute()
